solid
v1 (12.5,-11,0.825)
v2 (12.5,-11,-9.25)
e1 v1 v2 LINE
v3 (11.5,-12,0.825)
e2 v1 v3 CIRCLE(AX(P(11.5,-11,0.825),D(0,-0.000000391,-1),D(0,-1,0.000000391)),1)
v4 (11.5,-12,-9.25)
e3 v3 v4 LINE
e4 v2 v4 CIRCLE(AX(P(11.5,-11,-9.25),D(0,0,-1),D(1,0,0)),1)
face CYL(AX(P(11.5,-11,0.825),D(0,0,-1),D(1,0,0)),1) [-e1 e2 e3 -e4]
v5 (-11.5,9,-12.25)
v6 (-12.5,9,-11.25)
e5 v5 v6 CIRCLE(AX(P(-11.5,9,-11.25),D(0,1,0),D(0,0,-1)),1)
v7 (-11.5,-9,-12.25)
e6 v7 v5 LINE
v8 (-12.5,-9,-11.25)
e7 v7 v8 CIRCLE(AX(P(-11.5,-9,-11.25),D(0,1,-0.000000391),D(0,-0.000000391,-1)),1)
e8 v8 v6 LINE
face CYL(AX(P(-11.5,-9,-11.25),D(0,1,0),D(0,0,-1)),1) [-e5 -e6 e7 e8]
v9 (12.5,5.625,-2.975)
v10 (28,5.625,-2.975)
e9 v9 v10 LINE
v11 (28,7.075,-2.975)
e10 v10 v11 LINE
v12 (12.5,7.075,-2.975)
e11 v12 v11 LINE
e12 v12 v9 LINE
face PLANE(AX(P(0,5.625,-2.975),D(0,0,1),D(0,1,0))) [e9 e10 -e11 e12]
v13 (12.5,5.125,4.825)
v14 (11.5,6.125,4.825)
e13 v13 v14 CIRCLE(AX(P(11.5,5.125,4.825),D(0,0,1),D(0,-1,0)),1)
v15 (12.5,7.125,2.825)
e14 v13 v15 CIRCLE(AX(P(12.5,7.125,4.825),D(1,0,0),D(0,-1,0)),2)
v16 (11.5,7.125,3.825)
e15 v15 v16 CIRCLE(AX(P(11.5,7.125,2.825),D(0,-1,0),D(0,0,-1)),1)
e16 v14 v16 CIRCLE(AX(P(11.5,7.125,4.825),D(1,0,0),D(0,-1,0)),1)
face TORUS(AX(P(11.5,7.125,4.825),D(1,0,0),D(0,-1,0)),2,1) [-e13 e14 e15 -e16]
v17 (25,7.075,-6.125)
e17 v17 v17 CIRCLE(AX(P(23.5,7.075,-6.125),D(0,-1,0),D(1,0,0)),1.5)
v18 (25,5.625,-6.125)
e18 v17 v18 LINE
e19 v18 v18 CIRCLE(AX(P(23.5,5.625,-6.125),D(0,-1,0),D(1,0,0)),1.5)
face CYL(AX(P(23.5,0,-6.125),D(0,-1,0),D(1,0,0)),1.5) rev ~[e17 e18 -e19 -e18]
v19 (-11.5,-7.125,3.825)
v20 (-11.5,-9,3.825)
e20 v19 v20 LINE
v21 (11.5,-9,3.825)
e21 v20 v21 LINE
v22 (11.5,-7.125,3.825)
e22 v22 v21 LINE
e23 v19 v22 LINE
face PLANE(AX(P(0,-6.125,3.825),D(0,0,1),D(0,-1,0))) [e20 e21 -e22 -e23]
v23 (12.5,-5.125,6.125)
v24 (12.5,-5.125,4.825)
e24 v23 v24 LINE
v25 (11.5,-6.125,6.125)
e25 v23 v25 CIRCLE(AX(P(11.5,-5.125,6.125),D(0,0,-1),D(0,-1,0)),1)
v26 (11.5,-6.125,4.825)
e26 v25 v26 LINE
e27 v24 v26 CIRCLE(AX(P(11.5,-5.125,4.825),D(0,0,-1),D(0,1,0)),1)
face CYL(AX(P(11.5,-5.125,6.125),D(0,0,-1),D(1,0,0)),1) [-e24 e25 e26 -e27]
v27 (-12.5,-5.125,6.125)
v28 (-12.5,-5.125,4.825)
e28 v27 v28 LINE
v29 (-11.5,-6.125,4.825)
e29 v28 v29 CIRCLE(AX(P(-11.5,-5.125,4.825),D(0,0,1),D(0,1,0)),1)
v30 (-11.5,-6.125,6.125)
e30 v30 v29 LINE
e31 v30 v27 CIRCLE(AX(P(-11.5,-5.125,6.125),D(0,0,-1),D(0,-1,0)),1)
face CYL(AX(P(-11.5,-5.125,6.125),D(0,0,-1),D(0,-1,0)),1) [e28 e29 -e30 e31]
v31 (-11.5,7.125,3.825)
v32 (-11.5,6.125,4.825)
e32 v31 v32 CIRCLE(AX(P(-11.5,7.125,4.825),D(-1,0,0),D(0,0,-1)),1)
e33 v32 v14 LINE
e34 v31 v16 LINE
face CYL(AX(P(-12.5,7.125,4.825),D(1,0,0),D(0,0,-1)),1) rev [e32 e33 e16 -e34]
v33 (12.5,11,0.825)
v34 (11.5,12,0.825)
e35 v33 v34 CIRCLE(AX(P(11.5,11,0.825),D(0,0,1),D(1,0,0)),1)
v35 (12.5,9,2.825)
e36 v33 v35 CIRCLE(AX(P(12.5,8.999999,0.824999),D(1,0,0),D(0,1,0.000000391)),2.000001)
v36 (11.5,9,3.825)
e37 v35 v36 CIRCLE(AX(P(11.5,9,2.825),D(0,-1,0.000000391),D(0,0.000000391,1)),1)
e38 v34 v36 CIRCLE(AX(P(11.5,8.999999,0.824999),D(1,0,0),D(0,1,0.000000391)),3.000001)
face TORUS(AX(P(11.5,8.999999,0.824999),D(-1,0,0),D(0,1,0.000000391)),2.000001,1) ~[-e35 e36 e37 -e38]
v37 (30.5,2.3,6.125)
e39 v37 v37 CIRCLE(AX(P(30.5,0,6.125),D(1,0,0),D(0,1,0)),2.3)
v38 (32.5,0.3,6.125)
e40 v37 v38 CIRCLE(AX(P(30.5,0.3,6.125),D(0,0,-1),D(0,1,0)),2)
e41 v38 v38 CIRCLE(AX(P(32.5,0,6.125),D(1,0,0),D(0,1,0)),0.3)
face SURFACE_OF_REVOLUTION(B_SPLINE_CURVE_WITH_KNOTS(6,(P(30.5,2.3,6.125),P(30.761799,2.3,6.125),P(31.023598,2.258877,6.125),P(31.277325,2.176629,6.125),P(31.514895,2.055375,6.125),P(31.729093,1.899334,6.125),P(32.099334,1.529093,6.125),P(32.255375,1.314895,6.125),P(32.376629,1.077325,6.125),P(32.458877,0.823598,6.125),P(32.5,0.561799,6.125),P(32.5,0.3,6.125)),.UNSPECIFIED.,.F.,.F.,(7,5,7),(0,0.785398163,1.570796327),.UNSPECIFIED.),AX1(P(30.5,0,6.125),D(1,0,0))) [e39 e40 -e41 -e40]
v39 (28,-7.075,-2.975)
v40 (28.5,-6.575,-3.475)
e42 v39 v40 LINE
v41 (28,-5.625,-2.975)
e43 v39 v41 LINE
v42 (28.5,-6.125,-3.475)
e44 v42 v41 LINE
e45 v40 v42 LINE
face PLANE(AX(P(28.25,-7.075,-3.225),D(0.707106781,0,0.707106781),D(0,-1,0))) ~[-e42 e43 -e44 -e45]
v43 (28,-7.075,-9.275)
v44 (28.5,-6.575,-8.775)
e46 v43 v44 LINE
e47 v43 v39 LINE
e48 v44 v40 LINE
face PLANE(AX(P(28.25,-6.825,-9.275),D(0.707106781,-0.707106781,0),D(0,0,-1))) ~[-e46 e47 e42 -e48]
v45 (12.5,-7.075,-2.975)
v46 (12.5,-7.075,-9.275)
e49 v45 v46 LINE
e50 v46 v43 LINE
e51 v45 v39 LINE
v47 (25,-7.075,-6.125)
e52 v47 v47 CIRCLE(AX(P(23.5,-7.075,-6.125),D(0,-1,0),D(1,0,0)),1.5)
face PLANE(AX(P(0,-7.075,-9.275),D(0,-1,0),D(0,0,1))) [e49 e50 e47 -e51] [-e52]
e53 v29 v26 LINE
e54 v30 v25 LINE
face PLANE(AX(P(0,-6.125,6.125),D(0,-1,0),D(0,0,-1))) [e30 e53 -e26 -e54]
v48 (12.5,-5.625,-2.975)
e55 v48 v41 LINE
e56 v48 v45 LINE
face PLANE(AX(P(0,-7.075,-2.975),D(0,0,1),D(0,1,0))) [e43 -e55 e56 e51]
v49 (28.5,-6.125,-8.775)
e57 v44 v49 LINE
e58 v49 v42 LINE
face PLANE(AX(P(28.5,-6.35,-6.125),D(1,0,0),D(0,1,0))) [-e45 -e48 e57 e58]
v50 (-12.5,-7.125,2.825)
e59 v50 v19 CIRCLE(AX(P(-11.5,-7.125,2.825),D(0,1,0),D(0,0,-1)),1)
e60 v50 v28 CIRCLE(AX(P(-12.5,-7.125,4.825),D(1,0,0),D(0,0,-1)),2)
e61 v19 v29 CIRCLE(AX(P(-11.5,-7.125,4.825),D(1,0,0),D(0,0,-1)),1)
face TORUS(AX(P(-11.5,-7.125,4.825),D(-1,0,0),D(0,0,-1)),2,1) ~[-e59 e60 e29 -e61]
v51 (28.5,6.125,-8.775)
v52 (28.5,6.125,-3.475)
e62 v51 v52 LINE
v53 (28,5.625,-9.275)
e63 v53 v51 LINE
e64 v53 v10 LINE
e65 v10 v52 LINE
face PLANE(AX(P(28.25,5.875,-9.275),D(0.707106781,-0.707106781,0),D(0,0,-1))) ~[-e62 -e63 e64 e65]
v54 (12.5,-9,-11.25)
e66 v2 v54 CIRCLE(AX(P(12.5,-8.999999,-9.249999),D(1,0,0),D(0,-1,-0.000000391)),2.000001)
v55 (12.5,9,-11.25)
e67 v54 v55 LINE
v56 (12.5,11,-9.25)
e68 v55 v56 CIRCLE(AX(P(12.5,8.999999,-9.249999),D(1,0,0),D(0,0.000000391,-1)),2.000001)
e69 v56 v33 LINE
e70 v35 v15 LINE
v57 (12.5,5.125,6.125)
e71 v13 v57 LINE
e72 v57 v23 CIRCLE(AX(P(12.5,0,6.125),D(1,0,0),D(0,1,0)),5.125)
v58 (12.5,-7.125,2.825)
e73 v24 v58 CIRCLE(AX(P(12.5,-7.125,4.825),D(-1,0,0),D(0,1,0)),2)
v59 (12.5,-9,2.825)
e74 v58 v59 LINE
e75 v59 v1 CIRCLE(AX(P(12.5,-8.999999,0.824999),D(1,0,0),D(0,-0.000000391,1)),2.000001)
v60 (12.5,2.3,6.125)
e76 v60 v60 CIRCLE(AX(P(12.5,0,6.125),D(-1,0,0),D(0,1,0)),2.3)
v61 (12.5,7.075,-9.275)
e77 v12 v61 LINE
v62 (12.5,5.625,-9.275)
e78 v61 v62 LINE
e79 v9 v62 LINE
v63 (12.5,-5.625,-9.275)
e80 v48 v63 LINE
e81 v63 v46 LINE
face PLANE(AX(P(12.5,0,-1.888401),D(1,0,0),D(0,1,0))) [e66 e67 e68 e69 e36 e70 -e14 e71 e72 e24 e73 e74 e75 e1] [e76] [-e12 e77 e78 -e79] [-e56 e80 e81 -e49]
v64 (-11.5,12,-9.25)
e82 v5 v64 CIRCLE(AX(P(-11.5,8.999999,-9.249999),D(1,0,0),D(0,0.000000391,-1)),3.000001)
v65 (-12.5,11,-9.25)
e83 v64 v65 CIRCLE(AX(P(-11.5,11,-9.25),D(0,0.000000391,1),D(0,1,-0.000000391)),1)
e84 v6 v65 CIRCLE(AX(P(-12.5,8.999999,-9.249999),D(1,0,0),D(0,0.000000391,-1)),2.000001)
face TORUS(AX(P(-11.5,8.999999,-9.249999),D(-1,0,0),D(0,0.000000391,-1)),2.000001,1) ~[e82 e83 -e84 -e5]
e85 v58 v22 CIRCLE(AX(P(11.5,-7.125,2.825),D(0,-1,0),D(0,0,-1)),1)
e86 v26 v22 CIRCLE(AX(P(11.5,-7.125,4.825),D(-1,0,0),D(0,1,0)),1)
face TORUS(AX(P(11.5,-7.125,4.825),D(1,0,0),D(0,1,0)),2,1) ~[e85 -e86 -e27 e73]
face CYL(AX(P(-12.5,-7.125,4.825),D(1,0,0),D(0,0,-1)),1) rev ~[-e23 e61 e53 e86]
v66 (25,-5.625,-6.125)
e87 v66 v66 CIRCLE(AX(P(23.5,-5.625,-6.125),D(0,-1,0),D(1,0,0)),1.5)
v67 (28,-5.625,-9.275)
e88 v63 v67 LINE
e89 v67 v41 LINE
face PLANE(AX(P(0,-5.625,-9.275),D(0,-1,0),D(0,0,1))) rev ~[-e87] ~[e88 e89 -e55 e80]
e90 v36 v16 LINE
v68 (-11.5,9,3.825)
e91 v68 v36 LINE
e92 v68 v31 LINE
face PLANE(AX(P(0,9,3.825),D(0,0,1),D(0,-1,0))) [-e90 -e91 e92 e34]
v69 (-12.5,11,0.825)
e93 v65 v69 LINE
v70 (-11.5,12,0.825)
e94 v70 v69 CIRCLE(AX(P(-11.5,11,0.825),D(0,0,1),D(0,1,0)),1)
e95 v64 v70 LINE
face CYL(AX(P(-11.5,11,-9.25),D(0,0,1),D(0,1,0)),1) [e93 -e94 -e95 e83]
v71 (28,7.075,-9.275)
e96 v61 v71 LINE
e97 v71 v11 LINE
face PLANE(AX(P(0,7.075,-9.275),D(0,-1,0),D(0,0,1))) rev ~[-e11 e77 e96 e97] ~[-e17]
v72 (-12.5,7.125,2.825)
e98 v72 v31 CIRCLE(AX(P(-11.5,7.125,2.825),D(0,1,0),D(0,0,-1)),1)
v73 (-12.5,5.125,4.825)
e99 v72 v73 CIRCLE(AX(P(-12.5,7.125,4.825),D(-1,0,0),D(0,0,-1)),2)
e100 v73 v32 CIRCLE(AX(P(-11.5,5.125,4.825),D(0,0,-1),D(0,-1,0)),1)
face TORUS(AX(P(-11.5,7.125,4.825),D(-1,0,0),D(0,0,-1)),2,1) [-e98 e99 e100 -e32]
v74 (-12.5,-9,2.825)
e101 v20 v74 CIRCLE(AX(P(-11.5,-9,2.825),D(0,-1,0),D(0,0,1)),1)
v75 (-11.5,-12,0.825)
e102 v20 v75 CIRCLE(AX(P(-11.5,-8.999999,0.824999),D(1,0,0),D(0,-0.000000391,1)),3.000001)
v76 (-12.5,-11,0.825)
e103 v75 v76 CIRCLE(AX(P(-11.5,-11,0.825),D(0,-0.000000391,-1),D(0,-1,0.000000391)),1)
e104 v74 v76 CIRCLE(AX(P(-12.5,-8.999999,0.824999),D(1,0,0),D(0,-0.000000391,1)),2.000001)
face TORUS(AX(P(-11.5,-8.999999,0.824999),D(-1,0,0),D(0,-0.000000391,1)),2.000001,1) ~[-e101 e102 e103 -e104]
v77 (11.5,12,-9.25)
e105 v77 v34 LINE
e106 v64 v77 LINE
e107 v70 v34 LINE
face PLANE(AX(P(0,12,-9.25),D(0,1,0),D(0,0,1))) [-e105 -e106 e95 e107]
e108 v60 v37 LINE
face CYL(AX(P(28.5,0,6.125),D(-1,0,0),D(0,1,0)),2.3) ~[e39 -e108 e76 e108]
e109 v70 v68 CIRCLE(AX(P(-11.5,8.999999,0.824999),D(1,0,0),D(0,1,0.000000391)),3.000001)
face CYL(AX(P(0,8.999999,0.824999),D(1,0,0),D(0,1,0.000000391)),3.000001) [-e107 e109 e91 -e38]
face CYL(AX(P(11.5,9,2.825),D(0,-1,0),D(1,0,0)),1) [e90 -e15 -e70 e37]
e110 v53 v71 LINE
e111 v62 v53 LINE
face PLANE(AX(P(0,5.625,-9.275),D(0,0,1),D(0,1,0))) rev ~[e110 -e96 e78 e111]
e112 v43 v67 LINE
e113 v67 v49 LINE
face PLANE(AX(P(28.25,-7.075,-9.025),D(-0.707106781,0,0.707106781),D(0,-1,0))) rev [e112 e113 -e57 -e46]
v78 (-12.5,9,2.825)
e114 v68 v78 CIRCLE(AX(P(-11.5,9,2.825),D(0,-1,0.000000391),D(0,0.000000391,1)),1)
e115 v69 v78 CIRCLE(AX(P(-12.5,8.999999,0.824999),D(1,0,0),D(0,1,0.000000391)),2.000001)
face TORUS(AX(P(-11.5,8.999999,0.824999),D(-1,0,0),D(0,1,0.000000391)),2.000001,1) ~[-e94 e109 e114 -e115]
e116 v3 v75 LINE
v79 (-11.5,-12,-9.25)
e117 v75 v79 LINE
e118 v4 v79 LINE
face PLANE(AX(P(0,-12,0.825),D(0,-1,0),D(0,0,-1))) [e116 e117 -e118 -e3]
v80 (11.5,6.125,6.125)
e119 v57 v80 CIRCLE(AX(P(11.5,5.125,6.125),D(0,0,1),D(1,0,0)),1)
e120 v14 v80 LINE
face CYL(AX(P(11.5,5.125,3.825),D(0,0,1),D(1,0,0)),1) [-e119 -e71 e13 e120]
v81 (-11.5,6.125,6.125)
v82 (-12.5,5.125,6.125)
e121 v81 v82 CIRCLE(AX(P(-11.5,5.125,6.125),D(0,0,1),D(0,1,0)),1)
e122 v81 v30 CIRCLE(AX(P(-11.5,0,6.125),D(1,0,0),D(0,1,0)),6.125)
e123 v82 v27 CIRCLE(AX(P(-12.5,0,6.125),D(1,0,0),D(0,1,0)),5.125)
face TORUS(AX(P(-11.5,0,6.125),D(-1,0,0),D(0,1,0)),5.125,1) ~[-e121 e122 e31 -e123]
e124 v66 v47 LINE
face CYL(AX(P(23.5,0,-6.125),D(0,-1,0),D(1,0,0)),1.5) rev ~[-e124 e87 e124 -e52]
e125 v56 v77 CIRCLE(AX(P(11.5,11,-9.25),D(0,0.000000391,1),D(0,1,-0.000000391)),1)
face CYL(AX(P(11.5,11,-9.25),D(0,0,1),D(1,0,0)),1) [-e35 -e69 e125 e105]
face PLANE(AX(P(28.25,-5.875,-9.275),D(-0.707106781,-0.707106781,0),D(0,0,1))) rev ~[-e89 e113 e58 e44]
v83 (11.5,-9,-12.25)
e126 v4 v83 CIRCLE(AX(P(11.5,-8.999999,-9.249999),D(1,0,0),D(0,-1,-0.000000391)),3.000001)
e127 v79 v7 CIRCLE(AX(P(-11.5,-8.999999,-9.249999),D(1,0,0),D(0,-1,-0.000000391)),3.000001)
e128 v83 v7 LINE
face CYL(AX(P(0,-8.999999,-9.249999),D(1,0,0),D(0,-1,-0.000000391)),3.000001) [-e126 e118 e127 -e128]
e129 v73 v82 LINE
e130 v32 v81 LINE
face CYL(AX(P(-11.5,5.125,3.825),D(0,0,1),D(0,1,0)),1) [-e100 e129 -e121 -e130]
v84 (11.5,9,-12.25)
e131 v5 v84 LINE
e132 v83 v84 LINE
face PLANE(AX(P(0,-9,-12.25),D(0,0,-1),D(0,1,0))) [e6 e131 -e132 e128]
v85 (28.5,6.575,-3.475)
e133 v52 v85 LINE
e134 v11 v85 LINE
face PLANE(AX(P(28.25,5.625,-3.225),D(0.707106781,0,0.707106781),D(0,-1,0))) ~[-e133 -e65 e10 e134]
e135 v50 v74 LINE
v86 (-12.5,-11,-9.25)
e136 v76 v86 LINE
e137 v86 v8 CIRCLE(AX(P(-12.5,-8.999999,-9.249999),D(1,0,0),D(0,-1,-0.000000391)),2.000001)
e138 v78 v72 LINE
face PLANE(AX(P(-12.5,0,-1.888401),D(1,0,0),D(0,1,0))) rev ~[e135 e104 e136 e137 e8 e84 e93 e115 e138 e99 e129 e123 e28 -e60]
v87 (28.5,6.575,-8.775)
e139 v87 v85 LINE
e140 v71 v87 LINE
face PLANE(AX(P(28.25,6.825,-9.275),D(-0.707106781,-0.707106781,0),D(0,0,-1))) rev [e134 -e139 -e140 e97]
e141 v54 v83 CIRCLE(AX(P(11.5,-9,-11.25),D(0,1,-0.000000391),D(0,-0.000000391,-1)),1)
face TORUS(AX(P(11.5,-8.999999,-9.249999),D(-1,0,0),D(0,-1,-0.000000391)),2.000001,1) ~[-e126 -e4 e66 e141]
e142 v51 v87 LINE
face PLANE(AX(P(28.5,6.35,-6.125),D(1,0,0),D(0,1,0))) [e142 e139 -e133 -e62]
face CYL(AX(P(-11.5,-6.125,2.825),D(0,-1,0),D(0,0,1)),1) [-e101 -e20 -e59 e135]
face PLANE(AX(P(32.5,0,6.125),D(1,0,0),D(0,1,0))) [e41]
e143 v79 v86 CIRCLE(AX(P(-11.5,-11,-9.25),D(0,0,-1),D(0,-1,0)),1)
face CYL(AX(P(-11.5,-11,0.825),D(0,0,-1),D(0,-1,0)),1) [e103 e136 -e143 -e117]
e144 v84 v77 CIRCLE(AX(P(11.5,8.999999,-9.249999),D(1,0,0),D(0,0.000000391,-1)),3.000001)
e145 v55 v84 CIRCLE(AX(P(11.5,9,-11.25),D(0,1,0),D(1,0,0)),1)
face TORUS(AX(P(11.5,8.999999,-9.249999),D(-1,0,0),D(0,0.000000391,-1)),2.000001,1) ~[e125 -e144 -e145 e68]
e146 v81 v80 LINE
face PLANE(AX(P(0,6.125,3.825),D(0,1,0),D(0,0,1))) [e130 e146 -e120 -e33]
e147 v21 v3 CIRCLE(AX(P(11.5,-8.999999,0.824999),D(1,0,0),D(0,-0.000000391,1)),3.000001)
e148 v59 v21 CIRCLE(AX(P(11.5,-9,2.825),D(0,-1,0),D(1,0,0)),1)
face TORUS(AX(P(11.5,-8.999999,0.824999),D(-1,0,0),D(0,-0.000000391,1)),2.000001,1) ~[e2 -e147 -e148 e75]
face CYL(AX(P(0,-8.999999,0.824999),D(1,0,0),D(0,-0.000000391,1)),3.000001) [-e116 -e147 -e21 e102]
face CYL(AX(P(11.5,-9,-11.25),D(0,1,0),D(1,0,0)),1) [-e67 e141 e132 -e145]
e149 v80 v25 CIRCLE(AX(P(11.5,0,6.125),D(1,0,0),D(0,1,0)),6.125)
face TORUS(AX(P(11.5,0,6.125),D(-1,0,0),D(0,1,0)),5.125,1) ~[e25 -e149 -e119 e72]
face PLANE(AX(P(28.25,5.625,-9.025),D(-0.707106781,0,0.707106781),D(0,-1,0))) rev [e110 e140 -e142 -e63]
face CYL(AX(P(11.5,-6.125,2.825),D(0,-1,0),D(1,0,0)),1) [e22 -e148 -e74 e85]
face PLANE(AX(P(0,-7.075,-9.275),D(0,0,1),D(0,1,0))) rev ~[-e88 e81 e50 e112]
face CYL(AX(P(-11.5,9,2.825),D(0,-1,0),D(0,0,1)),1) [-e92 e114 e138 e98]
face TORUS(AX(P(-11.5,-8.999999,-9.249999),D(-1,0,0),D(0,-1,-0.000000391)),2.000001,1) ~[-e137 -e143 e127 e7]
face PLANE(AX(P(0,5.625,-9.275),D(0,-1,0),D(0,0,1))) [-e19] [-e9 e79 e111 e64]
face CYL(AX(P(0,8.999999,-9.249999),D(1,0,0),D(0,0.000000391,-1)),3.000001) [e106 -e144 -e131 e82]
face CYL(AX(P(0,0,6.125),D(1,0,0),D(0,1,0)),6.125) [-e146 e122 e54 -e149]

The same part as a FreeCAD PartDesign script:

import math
import FreeCAD as App
import Part
import Sketcher
from FreeCAD import Vector


def edges_at(feature, points):
    """Names of the edges that pass closest to the given points."""
    edges = feature.Shape.Edges
    near = lambda p: min(range(len(edges)), key=lambda i: edges[i].distToShape(Part.Vertex(*p))[0])
    return sorted({f"Edge{near(p) + 1}" for p in points})


def add_polygon(sketch, points):
    """Adds a closed chain of lines whose ends are joined by coincident constraints."""
    first, n = sketch.GeometryCount, len(points)
    for a, b in zip(points, points[1:] + points[:1]):
        sketch.addGeometry(Part.LineSegment(App.Vector(*a, 0), App.Vector(*b, 0)), False)
    for i in range(n):
        sketch.addConstraint(Sketcher.Constraint("Coincident", first + i, 2, first + (i + 1) % n, 1))

doc = App.newDocument("Part")
body = doc.addObject("PartDesign::Body", "Body")

# Sketch on YZ plane
sketch1 = body.newObject("Sketcher::SketchObject", "Sketch")
sketch1.AttachmentSupport = (doc.getObject("YZ_Plane"), [""])
sketch1.MapMode = "FlatFace"
sketch1.addGeometry([
    Part.LineSegment(Vector(-9, -12.2, 0), Vector(9, -12.2, 0)),  # 0
    Part.ArcOfCircle(Part.Circle(Vector(9, -9.2, 0), Vector(0, 0, 1), 3), math.radians(-90), math.radians(0)),  # 1
    Part.LineSegment(Vector(12, -9.2, 0), Vector(12, 0.8, 0)),  # 2
    Part.ArcOfCircle(Part.Circle(Vector(9, 0.8, 0), Vector(0, 0, 1), 3), math.radians(0), math.radians(90)),  # 3
    Part.LineSegment(Vector(9, 3.8, 0), Vector(6.1, 3.8, 0)),  # 4
    Part.LineSegment(Vector(6.1, 3.8, 0), Vector(6.1, 6.1, 0)),  # 5
    Part.ArcOfCircle(Part.Circle(Vector(0, 6.1, 0), Vector(0, 0, 1), 6.1), math.radians(0), math.radians(180)),  # 6
    Part.LineSegment(Vector(-6.1, 6.1, 0), Vector(-6.1, 3.8, 0)),  # 7
    Part.LineSegment(Vector(-6.1, 3.8, 0), Vector(-9, 3.8, 0)),  # 8
    Part.ArcOfCircle(Part.Circle(Vector(-9, 0.8, 0), Vector(0, 0, 1), 3), math.radians(90), math.radians(180)),  # 9
    Part.LineSegment(Vector(-12, 0.8, 0), Vector(-12, -9.2, 0)),  # 10
    Part.ArcOfCircle(Part.Circle(Vector(-9, -9.2, 0), Vector(0, 0, 1), 3), math.radians(-180), math.radians(-90)),  # 11
], False)
sketch1.addConstraint([
    Sketcher.Constraint("Tangent", 0, 2, 1, 1),
    Sketcher.Constraint("Tangent", 1, 2, 2, 1),
    Sketcher.Constraint("Tangent", 2, 2, 3, 1),
    Sketcher.Constraint("Tangent", 3, 2, 4, 1),
    Sketcher.Constraint("Coincident", 4, 2, 5, 1),
    Sketcher.Constraint("Tangent", 5, 2, 6, 1),
    Sketcher.Constraint("Tangent", 6, 2, 7, 1),
    Sketcher.Constraint("Coincident", 7, 2, 8, 1),
    Sketcher.Constraint("Tangent", 8, 2, 9, 1),
    Sketcher.Constraint("Tangent", 9, 2, 10, 1),
    Sketcher.Constraint("Tangent", 10, 2, 11, 1),
    Sketcher.Constraint("Tangent", 11, 2, 0, 1),
    Sketcher.Constraint("Horizontal", 0),
    Sketcher.Constraint("Vertical", 2),
    Sketcher.Constraint("Horizontal", 4),
    Sketcher.Constraint("Vertical", 5),
    Sketcher.Constraint("Vertical", 7),
    Sketcher.Constraint("Horizontal", 8),
    Sketcher.Constraint("Vertical", 10),
    Sketcher.Constraint("Equal", 1, 3),
    Sketcher.Constraint("Equal", 3, 9),
    Sketcher.Constraint("Equal", 9, 11),
    Sketcher.Constraint("Symmetric", 3, 3, 9, 3, -2),
    Sketcher.Constraint("PointOnObject", 6, 3, -2),
    Sketcher.Constraint("Radius", 1, 3.000001),
    Sketcher.Constraint("DistanceX", 0, 1, 0, 2, 18.0),
    Sketcher.Constraint("DistanceY", 5, 1, 5, 2, 2.3),
    Sketcher.Constraint("Radius", 6, 6.125),
    Sketcher.Constraint("DistanceY", 2, 1, 2, 2, 10.075),
    Sketcher.Constraint("DistanceY", 1, 3, -1, 1, 9.249999),
])
pad1 = body.newObject("PartDesign::Pad", "Pad")
pad1.Profile = sketch1
pad1.Length = 25
pad1.Midplane = True

# Sketch on YZ plane
sketch2 = body.newObject("Sketcher::SketchObject", "Sketch001")
sketch2.AttachmentSupport = (doc.getObject("YZ_Plane"), [""])
sketch2.MapMode = "FlatFace"
add_polygon(sketch2, [(-7.1, -3), (-7.1, -9.3), (-5.6, -9.3), (-5.6, -3)])  # lines 0-3
add_polygon(sketch2, [(5.6, -3), (5.6, -9.3), (7.1, -9.3), (7.1, -3)])  # lines 4-7
sketch2.addGeometry(Part.Circle(Vector(0, 6.1, 0), Vector(0, 0, 1), 2.3), False)  # 8
sketch2.addConstraint([
    Sketcher.Constraint("Vertical", 0),
    Sketcher.Constraint("Horizontal", 1),
    Sketcher.Constraint("Vertical", 2),
    Sketcher.Constraint("Horizontal", 3),
    Sketcher.Constraint("Vertical", 4),
    Sketcher.Constraint("Horizontal", 5),
    Sketcher.Constraint("Vertical", 6),
    Sketcher.Constraint("Horizontal", 7),
    Sketcher.Constraint("Symmetric", 1, 2, 4, 2, -2),
    Sketcher.Constraint("Symmetric", 3, 2, 6, 2, -2),
    Sketcher.Constraint("PointOnObject", 8, 3, -2),
    Sketcher.Constraint("Diameter", 8, 4.6),
    Sketcher.Constraint("DistanceY", 0, 2, 0, 1, 6.3),
    Sketcher.Constraint("DistanceX", 1, 1, 1, 2, 1.45),
    Sketcher.Constraint("DistanceY", 0, 2, 8, 3, 15.4),
    Sketcher.Constraint("DistanceX", 0, 2, 4, 2, 12.7),
    Sketcher.Constraint("DistanceY", -1, 1, 8, 3, 6.125),
])
pad2 = body.newObject("PartDesign::Pad", "Pad001")
pad2.Profile = sketch2
pad2.Length = 28.5

# Sketch on XZ plane
sketch3 = body.newObject("Sketcher::SketchObject", "Sketch002")
sketch3.AttachmentSupport = (doc.getObject("XZ_Plane"), [""])
sketch3.MapMode = "FlatFace"
sketch3.addGeometry(Part.Circle(Vector(23.5, -6.1, 0), Vector(0, 0, 1), 1.5), False)
sketch3.addConstraint([
    Sketcher.Constraint("Diameter", 0, 3.0),
    Sketcher.Constraint("DistanceX", -1, 1, 0, 3, 23.5),
    Sketcher.Constraint("DistanceY", 0, 3, -1, 1, 6.125),
])
pocket1 = body.newObject("PartDesign::Pocket", "Pocket")
pocket1.Profile = sketch3
pocket1.Length = 25
pocket1.Midplane = True
doc.recompute()

chamfer = body.newObject("PartDesign::Chamfer", "Chamfer")
chamfer.Base = (pocket1, edges_at(pocket1, [
    (28.5, -7.075, -6.125),
    (28.5, -6.35, -9.275),
    (28.5, -5.625, -6.125),
    (28.5, -6.35, -2.975),
    (28.5, 5.625, -6.125),
    (28.5, 6.35, -9.275),
    (28.5, 7.075, -6.125),
    (28.5, 6.35, -2.975),
]))
chamfer.Size = 0.5

# Sketch on YZ plane
sketch4 = body.newObject("Sketcher::SketchObject", "Sketch003")
sketch4.AttachmentSupport = (doc.getObject("YZ_Plane"), [""])
sketch4.MapMode = "FlatFace"
sketch4.AttachmentOffset = App.Placement(Vector(0, 0, 28.5), App.Rotation())
sketch4.addGeometry(Part.Circle(Vector(0, 6.1, 0), Vector(0, 0, 1), 2.3), False)
sketch4.addConstraint([
    Sketcher.Constraint("PointOnObject", 0, 3, -2),
    Sketcher.Constraint("Diameter", 0, 4.6),
    Sketcher.Constraint("DistanceY", -1, 1, 0, 3, 6.125),
])
pad3 = body.newObject("PartDesign::Pad", "Pad002")
pad3.Profile = sketch4
pad3.Length = 4
doc.recompute()

fillet = body.newObject("PartDesign::Fillet", "Fillet")
fillet.Base = (pad3, edges_at(pad3, [(32.5, -2.3, 6.125)]))
fillet.Radius = 2
doc.recompute()

fillet2 = body.newObject("PartDesign::Fillet", "Fillet001")
fillet2.Base = (fillet, edges_at(fillet, [
    (12.5, 0, 12.25),
    (12.5, 7.562, 3.825),
    (-12.5, 11.121, -11.371),
    (-12.5, 0, 12.25),
    (0, -6.125, 3.825),
    (0, 6.125, 3.825),
]))
fillet2.Radius = 1

doc.recompute()
